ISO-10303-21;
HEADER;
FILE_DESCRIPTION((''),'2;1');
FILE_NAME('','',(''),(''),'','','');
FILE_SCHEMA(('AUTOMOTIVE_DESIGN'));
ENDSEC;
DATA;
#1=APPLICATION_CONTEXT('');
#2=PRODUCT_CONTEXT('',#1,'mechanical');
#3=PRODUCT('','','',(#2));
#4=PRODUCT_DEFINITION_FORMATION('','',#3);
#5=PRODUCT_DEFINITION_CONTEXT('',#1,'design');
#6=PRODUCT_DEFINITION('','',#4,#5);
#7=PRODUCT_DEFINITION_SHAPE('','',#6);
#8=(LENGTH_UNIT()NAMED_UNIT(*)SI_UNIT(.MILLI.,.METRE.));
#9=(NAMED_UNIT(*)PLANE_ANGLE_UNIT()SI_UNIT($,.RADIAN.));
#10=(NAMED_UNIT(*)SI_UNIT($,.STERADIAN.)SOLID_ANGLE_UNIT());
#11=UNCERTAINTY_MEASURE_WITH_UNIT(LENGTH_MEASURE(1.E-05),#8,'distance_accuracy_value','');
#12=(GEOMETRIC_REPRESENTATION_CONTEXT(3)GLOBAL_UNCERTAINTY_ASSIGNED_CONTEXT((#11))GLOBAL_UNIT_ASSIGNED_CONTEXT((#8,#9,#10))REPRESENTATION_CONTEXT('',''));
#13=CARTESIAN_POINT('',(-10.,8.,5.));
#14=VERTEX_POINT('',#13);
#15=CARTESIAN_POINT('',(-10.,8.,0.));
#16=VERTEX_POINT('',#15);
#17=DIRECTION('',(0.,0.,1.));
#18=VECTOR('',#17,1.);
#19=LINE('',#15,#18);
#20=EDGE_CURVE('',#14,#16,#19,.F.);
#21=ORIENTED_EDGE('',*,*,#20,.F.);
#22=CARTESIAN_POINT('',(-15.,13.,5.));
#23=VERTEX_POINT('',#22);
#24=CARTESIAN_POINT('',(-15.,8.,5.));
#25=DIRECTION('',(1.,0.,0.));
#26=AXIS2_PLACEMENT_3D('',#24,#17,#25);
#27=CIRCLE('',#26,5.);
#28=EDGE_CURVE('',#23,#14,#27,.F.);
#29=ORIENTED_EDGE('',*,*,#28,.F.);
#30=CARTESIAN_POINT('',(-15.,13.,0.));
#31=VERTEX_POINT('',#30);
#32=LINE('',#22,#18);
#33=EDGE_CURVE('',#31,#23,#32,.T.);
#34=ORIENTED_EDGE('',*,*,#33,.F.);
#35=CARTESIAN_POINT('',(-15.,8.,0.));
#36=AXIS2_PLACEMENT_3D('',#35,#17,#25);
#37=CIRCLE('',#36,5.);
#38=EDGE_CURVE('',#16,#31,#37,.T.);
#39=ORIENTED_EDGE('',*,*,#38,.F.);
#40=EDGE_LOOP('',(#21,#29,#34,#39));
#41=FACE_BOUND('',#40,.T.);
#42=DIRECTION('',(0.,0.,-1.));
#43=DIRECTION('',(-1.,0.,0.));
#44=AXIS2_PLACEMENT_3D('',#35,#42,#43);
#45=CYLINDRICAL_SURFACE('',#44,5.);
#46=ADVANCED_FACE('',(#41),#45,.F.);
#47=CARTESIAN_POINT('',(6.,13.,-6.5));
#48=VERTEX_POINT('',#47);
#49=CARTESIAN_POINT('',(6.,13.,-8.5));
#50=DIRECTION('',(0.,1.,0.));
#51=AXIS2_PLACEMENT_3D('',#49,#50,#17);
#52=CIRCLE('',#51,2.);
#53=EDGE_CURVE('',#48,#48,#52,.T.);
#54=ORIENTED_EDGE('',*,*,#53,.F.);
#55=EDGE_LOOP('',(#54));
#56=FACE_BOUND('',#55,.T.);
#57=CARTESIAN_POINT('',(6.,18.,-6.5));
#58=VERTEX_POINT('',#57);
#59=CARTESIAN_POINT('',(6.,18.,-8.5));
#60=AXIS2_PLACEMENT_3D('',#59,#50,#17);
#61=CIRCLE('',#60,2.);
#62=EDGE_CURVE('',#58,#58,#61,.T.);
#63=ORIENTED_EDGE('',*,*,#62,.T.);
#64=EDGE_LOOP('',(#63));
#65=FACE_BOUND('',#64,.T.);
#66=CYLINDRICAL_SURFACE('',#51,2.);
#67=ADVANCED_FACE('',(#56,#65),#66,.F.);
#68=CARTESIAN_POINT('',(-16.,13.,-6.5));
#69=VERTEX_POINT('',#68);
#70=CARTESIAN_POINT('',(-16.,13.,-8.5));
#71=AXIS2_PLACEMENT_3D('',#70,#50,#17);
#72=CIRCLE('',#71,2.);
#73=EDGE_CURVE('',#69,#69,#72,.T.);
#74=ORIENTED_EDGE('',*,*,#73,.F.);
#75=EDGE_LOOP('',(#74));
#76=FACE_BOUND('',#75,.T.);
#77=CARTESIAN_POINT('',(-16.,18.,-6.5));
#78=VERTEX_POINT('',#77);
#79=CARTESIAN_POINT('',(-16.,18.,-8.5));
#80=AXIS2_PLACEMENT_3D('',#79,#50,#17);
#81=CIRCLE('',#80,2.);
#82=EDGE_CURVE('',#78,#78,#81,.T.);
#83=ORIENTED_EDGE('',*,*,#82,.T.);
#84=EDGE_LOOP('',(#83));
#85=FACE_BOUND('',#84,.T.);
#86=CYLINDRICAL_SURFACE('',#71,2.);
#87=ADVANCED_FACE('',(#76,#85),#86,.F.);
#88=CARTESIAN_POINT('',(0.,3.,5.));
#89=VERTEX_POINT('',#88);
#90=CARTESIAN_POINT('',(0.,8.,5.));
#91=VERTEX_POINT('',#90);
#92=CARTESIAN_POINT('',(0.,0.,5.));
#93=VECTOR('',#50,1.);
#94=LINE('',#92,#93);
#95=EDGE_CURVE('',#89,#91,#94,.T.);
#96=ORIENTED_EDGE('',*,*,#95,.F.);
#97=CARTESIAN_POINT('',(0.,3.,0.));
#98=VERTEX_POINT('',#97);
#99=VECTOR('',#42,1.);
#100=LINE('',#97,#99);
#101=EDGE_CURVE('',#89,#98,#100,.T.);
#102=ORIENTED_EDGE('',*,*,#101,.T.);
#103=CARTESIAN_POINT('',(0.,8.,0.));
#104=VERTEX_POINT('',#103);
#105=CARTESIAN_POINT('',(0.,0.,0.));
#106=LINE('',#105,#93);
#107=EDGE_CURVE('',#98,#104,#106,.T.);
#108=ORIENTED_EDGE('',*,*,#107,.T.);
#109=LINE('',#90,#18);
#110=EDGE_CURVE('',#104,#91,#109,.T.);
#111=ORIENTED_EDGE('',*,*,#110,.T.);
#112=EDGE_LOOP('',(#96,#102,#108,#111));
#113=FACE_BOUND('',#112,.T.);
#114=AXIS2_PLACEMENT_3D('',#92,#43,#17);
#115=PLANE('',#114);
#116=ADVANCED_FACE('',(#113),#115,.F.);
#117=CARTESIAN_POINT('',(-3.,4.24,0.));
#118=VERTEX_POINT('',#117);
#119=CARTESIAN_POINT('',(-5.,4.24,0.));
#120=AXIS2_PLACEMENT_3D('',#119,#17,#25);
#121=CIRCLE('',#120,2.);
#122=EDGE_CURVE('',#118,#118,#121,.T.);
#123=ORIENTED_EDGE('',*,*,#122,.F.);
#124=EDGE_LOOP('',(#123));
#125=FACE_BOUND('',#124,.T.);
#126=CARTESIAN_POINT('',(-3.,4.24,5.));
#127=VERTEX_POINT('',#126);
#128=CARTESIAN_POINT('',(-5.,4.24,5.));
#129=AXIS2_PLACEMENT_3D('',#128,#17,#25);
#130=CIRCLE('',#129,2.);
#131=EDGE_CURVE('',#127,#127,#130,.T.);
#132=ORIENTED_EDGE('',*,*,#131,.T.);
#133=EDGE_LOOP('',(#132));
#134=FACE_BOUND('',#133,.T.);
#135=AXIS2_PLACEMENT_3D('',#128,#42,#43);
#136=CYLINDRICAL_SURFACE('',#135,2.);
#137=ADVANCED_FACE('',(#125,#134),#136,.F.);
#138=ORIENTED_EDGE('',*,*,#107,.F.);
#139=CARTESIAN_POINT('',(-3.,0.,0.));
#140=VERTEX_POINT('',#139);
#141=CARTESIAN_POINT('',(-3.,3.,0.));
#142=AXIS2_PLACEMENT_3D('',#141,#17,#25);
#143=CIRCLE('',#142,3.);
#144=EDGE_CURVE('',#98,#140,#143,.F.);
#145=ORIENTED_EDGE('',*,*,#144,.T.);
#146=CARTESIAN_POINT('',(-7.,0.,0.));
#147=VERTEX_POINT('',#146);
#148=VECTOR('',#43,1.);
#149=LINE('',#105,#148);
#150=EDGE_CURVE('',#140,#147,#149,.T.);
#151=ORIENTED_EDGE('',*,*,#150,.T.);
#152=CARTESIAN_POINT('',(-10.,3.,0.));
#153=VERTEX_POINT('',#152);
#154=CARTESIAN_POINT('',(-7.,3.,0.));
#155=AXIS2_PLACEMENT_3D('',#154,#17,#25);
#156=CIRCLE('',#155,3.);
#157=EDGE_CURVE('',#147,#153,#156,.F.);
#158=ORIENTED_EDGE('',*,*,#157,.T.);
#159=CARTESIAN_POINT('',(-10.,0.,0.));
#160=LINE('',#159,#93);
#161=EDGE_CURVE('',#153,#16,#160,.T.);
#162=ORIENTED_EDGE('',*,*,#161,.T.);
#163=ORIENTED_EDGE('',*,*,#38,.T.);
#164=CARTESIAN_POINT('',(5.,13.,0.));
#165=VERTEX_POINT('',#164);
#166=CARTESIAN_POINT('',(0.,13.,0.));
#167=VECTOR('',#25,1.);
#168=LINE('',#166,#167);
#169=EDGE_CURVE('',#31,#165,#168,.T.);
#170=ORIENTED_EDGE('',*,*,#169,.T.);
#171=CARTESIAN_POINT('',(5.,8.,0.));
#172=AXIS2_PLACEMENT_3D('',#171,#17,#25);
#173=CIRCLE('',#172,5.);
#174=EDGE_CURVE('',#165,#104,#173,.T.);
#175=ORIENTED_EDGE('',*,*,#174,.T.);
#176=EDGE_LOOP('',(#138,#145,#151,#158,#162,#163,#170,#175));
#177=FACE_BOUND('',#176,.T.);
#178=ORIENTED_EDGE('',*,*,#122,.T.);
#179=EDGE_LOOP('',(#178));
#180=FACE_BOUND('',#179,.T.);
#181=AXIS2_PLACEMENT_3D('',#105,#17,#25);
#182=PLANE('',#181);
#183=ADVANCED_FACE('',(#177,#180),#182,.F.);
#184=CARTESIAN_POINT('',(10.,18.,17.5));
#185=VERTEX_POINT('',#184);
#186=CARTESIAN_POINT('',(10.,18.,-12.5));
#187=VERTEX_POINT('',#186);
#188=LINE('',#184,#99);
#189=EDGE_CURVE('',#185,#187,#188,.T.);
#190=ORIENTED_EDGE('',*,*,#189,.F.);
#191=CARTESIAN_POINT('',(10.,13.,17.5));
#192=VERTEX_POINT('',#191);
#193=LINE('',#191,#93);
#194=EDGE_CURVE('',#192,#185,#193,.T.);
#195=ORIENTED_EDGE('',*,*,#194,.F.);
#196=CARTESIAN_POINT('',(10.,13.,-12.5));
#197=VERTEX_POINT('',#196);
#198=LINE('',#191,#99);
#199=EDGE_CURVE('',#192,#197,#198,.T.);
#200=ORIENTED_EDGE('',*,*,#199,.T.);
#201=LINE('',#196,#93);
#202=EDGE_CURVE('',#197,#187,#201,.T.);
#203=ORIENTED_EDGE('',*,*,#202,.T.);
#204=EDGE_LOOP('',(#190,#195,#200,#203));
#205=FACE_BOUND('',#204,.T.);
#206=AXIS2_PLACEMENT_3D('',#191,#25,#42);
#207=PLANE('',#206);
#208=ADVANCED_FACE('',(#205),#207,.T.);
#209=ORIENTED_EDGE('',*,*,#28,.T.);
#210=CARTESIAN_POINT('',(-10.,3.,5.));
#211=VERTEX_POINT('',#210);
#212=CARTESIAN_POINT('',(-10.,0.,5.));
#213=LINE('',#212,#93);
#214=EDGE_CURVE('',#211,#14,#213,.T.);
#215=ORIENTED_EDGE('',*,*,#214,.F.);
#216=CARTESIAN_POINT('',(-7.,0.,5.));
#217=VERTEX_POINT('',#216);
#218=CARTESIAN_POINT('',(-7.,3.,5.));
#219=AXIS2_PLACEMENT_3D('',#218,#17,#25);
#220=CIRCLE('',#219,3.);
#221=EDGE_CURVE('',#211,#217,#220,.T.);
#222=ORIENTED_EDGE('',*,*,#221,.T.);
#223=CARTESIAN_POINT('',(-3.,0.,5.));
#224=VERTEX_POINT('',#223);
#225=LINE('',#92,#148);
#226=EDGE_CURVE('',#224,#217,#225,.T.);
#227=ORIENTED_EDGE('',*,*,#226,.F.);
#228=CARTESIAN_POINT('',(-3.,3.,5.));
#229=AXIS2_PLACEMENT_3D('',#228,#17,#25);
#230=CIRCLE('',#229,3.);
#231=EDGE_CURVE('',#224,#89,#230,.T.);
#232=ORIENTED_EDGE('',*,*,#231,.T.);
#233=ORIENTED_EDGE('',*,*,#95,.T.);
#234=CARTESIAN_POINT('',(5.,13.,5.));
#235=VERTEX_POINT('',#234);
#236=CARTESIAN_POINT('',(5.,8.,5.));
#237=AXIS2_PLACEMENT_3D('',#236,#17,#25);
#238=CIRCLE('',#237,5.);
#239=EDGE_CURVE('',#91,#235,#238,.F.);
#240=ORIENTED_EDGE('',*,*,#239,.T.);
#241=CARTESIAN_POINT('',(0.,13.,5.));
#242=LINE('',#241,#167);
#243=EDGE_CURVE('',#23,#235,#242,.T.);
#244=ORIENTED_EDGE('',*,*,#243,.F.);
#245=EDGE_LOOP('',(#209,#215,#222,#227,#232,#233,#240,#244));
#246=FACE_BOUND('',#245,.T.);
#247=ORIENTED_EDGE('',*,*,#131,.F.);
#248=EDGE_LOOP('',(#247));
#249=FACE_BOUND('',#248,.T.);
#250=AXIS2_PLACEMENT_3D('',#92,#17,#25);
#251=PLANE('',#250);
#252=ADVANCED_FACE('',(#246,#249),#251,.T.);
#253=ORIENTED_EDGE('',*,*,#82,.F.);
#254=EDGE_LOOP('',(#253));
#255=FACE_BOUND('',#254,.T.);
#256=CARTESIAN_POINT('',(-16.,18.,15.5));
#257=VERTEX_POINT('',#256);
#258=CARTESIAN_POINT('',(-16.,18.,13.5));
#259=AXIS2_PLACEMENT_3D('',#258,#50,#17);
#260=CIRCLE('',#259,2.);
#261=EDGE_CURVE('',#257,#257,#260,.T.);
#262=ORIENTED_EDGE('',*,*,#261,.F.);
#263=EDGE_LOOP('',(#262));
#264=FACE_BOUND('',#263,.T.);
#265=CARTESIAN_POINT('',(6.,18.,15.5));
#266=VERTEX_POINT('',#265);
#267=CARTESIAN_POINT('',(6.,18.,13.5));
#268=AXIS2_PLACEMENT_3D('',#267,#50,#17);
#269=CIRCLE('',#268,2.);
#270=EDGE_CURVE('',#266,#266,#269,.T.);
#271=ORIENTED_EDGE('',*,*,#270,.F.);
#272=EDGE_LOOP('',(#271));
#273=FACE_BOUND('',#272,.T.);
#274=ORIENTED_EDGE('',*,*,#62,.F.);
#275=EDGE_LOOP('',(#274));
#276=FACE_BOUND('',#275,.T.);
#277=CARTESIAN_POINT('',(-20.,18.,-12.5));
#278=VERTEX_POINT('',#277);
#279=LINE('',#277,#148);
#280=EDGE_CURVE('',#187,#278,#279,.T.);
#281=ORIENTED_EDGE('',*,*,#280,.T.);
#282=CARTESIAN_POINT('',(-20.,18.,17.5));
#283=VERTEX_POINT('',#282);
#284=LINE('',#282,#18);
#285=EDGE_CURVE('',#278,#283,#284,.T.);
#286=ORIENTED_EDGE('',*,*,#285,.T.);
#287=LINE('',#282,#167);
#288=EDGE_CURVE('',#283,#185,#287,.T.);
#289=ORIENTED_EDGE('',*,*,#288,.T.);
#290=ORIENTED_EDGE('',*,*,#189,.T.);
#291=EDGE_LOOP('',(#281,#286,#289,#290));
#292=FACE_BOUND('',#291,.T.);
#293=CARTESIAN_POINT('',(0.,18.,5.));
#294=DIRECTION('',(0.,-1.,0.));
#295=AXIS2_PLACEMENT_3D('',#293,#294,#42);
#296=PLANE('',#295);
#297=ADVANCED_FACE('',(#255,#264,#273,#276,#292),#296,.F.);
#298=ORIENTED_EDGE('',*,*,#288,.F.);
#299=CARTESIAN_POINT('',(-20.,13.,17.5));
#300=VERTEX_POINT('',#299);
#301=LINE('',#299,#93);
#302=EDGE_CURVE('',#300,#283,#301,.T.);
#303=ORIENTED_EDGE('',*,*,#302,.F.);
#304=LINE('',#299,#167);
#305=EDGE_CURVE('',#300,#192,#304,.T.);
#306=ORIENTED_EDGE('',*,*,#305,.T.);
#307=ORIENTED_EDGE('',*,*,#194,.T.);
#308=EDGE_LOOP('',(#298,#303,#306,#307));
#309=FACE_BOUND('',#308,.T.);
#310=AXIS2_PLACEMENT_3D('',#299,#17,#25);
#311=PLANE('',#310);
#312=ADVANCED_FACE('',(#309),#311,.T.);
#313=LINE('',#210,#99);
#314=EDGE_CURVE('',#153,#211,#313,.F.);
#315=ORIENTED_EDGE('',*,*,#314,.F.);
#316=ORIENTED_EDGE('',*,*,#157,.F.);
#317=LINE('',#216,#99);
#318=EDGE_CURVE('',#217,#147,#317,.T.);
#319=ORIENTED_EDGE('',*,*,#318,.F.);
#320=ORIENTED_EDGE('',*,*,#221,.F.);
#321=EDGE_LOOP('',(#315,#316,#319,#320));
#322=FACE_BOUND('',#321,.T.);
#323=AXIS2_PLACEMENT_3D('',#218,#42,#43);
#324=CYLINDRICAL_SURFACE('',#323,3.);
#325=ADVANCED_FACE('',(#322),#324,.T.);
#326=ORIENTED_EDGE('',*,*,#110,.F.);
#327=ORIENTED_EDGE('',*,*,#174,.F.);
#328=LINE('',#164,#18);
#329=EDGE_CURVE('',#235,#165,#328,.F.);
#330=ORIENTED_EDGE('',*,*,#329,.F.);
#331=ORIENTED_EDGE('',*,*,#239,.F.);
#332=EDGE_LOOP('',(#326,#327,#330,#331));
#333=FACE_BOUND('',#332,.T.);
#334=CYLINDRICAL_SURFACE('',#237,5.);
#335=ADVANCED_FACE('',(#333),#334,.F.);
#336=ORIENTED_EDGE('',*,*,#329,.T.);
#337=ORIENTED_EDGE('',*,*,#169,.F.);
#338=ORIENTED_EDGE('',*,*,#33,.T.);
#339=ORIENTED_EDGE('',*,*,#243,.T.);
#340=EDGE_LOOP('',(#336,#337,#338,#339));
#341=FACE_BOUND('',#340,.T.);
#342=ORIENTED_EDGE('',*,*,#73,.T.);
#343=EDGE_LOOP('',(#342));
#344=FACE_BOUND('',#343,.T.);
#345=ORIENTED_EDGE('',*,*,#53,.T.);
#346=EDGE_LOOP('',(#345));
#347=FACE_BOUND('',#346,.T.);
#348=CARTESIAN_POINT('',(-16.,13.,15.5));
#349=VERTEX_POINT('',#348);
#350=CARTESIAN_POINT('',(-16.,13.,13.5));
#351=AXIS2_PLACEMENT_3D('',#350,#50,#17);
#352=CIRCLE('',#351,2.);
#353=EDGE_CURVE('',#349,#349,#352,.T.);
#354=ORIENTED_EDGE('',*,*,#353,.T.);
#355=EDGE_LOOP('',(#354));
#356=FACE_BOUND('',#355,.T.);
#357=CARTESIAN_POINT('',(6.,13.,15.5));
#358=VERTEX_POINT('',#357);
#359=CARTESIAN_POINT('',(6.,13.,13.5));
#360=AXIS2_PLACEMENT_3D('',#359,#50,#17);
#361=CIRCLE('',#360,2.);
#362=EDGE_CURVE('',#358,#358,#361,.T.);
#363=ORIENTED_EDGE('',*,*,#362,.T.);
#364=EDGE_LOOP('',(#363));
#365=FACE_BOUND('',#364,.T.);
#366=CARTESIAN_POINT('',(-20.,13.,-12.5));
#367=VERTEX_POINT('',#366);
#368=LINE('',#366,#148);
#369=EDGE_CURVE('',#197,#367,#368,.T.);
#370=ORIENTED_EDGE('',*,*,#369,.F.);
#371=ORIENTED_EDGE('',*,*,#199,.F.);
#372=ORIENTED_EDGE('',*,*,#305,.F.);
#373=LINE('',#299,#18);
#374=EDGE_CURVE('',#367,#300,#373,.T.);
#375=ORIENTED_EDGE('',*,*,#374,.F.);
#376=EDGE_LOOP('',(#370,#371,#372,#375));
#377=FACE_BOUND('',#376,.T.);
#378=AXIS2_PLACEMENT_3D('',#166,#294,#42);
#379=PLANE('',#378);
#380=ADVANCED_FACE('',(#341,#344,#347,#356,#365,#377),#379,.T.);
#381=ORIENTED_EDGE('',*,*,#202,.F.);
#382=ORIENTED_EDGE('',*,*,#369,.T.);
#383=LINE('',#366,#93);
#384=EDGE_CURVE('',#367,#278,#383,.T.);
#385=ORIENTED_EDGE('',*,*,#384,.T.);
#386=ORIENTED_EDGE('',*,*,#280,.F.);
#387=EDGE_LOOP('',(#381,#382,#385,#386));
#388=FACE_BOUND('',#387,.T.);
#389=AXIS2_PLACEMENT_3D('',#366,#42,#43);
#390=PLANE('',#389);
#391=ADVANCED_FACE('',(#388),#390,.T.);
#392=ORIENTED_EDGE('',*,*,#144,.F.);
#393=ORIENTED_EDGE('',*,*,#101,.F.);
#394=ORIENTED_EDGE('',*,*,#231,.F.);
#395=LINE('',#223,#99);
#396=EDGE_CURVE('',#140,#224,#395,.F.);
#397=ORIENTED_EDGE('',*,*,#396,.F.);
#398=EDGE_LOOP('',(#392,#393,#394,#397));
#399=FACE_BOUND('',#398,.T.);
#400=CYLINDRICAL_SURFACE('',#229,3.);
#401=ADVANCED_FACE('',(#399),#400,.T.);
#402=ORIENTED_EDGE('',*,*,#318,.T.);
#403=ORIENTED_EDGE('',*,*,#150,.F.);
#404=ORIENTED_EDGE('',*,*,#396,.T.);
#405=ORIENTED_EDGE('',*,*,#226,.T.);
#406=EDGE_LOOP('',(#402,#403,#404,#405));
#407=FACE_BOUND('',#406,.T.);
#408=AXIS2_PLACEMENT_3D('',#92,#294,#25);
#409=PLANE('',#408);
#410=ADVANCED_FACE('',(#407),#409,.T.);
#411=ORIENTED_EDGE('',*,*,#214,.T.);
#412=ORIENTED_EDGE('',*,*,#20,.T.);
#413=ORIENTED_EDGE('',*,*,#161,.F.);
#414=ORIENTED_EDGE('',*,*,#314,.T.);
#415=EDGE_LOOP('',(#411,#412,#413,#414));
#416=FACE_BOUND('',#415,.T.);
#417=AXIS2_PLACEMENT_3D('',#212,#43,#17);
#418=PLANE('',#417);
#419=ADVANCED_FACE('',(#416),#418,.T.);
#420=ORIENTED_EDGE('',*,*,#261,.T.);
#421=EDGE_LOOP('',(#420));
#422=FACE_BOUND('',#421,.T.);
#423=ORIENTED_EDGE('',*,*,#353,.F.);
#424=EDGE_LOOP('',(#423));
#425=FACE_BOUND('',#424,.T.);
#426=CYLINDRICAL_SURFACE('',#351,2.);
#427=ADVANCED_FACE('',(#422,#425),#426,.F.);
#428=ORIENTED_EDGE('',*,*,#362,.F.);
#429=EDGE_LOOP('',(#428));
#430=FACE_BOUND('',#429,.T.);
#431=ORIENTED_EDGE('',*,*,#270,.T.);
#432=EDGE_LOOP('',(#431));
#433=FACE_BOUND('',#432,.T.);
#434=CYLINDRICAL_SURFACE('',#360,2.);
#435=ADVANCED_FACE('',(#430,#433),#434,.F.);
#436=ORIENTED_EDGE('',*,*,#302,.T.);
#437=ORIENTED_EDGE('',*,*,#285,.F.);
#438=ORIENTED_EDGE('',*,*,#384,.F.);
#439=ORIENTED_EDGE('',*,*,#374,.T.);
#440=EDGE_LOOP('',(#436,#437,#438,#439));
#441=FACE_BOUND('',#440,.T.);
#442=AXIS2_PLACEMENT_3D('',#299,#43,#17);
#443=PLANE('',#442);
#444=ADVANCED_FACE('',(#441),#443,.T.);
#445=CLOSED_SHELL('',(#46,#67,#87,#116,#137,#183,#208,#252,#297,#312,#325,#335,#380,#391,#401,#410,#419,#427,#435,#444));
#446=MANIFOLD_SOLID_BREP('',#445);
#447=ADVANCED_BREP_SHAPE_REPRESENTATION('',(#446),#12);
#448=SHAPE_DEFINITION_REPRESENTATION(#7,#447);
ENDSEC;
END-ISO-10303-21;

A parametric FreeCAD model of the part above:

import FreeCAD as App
import Part
import Sketcher
from FreeCAD import Vector
Q = App.Units.Quantity


def edges_at(feature, points):
    """Names of the edges that pass closest to the given points."""
    edges = feature.Shape.Edges
    near = lambda p: min(range(len(edges)), key=lambda i: edges[i].distToShape(Part.Vertex(*p))[0])
    return sorted({f"Edge{near(p) + 1}" for p in points})

doc = App.newDocument("Part")
params = doc.addObject("Spreadsheet::Sheet", "Params")
for row, (alias, value) in enumerate([
    ("sketch1_diameter", "4 mm"),
    ("sketch1_width", "10 mm"),
    ("sketch1_height", "18 mm"),
    ("pad1_length", "5 mm"),
    ("sketch2_width", "30 mm"),
    ("pad2_length", "5 mm"),
    ("fillet_radius", "5 mm"),
    ("fillet2_radius", "3 mm"),
    ("sketch3_diameter", "4 mm"),
    ("pocket1_length", "5 mm"),
], start=1):
    params.set(f"A{row}", alias)
    params.set(f"B{row}", "=" + value)
    params.setAlias(f"B{row}", alias)

body = doc.addObject("PartDesign::Body", "Body")

# Sketch on XY plane
sketch1 = body.newObject("Sketcher::SketchObject", "Sketch")
sketch1.AttachmentSupport = (doc.getObject("XY_Plane"), [""])
sketch1.MapMode = "FlatFace"
sketch1.addGeometry(Part.LineSegment(Vector(-10, 18, 0), Vector(-10, 0, 0)), False)
sketch1.addGeometry(Part.LineSegment(Vector(-10, 0, 0), Vector(0, 0, 0)), False)
sketch1.addGeometry(Part.LineSegment(Vector(0, 0, 0), Vector(0, 18, 0)), False)
sketch1.addGeometry(Part.LineSegment(Vector(0, 18, 0), Vector(-10, 18, 0)), False)
sketch1.addGeometry(Part.Circle(Vector(-5, 4.24, 0), Vector(0, 0, 1), 2), False)
sketch1.addConstraint(Sketcher.Constraint("Coincident", 0, 2, 1, 1))
sketch1.addConstraint(Sketcher.Constraint("Coincident", 1, 2, 2, 1))
sketch1.addConstraint(Sketcher.Constraint("Coincident", 2, 2, 3, 1))
sketch1.addConstraint(Sketcher.Constraint("Coincident", 3, 2, 0, 1))
sketch1.addConstraint(Sketcher.Constraint("Vertical", 0))
sketch1.addConstraint(Sketcher.Constraint("Horizontal", 1))
sketch1.addConstraint(Sketcher.Constraint("Vertical", 2))
sketch1.addConstraint(Sketcher.Constraint("Horizontal", 3))
sketch1.addConstraint(Sketcher.Constraint("Coincident", 1, 2, -1, 1))
sketch1.addConstraint(Sketcher.Constraint("Diameter", 4, Q("4 mm")))
sketch1.addConstraint(Sketcher.Constraint("DistanceX", 1, 1, 1, 2, Q("10 mm")))
sketch1.addConstraint(Sketcher.Constraint("DistanceY", 0, 2, 0, 1, Q("18 mm")))
sketch1.addConstraint(Sketcher.Constraint("DistanceX", 4, 3, -1, 1, Q("5 mm")))
sketch1.addConstraint(Sketcher.Constraint("DistanceY", -1, 1, 4, 3, Q("4.24 mm")))
sketch1.setExpression("Constraints[9]", "Params.sketch1_diameter")
sketch1.setExpression("Constraints[10]", "Params.sketch1_width")
sketch1.setExpression("Constraints[11]", "Params.sketch1_height")
pad1 = body.newObject("PartDesign::Pad", "Pad")
pad1.Profile = sketch1
pad1.setExpression("Length", "Params.pad1_length")

# Sketch on XZ plane
sketch2 = body.newObject("Sketcher::SketchObject", "Sketch001")
sketch2.AttachmentSupport = (doc.getObject("XZ_Plane"), [""])
sketch2.MapMode = "FlatFace"
sketch2.AttachmentOffset = App.Placement(Vector(0, 0, -18), App.Rotation())
sketch2.addGeometry(Part.LineSegment(Vector(-20, -12.5, 0), Vector(-20, 17.5, 0)), False)
sketch2.addGeometry(Part.LineSegment(Vector(-20, 17.5, 0), Vector(10, 17.5, 0)), False)
sketch2.addGeometry(Part.LineSegment(Vector(10, 17.5, 0), Vector(10, -12.5, 0)), False)
sketch2.addGeometry(Part.LineSegment(Vector(10, -12.5, 0), Vector(-20, -12.5, 0)), False)
sketch2.addConstraint(Sketcher.Constraint("Coincident", 0, 2, 1, 1))
sketch2.addConstraint(Sketcher.Constraint("Coincident", 1, 2, 2, 1))
sketch2.addConstraint(Sketcher.Constraint("Coincident", 2, 2, 3, 1))
sketch2.addConstraint(Sketcher.Constraint("Coincident", 3, 2, 0, 1))
sketch2.addConstraint(Sketcher.Constraint("Vertical", 0))
sketch2.addConstraint(Sketcher.Constraint("Horizontal", 1))
sketch2.addConstraint(Sketcher.Constraint("Vertical", 2))
sketch2.addConstraint(Sketcher.Constraint("Horizontal", 3))
sketch2.addConstraint(Sketcher.Constraint("Equal", 3, 0))
sketch2.addConstraint(Sketcher.Constraint("DistanceX", 1, 1, 1, 2, Q("30 mm")))
sketch2.addConstraint(Sketcher.Constraint("DistanceX", 0, 2, -1, 1, Q("20 mm")))
sketch2.addConstraint(Sketcher.Constraint("DistanceY", -1, 1, 0, 2, Q("17.5 mm")))
sketch2.setExpression("Constraints[9]", "Params.sketch2_width")
pad2 = body.newObject("PartDesign::Pad", "Pad001")
pad2.Profile = sketch2
pad2.setExpression("Length", "Params.pad2_length")
doc.recompute()

fillet = body.newObject("PartDesign::Fillet", "Fillet")
fillet.Base = (pad2, edges_at(pad2, [(0, 13, 2.5), (-10, 13, 2.5)]))
fillet.setExpression("Radius", "Params.fillet_radius")
doc.recompute()

fillet2 = body.newObject("PartDesign::Fillet", "Fillet001")
fillet2.Base = (fillet, edges_at(fillet, [(0, 0, 2.5), (-10, 0, 2.5)]))
fillet2.setExpression("Radius", "Params.fillet2_radius")

# Sketch on XZ plane
sketch3 = body.newObject("Sketcher::SketchObject", "Sketch002")
sketch3.AttachmentSupport = (doc.getObject("XZ_Plane"), [""])
sketch3.MapMode = "FlatFace"
sketch3.AttachmentOffset = App.Placement(Vector(0, 0, -18), App.Rotation())
sketch3.addGeometry(Part.Circle(Vector(-16, -8.5, 0), Vector(0, 0, 1), 2), False)
sketch3.addGeometry(Part.Circle(Vector(6, -8.5, 0), Vector(0, 0, 1), 2), False)
sketch3.addGeometry(Part.Circle(Vector(6, 13.5, 0), Vector(0, 0, 1), 2), False)
sketch3.addGeometry(Part.Circle(Vector(-16, 13.5, 0), Vector(0, 0, 1), 2), False)
sketch3.addConstraint(Sketcher.Constraint("Equal", 0, 1))
sketch3.addConstraint(Sketcher.Constraint("Equal", 1, 2))
sketch3.addConstraint(Sketcher.Constraint("Equal", 2, 3))
sketch3.addConstraint(Sketcher.Constraint("Horizontal", 0, 3, 1, 3))
sketch3.addConstraint(Sketcher.Constraint("Horizontal", 2, 3, 3, 3))
sketch3.addConstraint(Sketcher.Constraint("Vertical", 1, 3, 2, 3))
sketch3.addConstraint(Sketcher.Constraint("Vertical", 0, 3, 3, 3))
sketch3.addConstraint(Sketcher.Constraint("Diameter", 0, Q("4 mm")))
sketch3.addConstraint(Sketcher.Constraint("DistanceX", 0, 3, -1, 1, Q("16 mm")))
sketch3.addConstraint(Sketcher.Constraint("DistanceX", -1, 1, 1, 3, Q("6 mm")))
sketch3.addConstraint(Sketcher.Constraint("DistanceY", 1, 3, 2, 3, Q("22 mm")))
sketch3.addConstraint(Sketcher.Constraint("DistanceY", 0, 3, -1, 1, Q("8.5 mm")))
sketch3.setExpression("Constraints[7]", "Params.sketch3_diameter")
pocket1 = body.newObject("PartDesign::Pocket", "Pocket")
pocket1.Profile = sketch3
pocket1.setExpression("Length", "Params.pocket1_length")
pocket1.Reversed = True

doc.recompute()
